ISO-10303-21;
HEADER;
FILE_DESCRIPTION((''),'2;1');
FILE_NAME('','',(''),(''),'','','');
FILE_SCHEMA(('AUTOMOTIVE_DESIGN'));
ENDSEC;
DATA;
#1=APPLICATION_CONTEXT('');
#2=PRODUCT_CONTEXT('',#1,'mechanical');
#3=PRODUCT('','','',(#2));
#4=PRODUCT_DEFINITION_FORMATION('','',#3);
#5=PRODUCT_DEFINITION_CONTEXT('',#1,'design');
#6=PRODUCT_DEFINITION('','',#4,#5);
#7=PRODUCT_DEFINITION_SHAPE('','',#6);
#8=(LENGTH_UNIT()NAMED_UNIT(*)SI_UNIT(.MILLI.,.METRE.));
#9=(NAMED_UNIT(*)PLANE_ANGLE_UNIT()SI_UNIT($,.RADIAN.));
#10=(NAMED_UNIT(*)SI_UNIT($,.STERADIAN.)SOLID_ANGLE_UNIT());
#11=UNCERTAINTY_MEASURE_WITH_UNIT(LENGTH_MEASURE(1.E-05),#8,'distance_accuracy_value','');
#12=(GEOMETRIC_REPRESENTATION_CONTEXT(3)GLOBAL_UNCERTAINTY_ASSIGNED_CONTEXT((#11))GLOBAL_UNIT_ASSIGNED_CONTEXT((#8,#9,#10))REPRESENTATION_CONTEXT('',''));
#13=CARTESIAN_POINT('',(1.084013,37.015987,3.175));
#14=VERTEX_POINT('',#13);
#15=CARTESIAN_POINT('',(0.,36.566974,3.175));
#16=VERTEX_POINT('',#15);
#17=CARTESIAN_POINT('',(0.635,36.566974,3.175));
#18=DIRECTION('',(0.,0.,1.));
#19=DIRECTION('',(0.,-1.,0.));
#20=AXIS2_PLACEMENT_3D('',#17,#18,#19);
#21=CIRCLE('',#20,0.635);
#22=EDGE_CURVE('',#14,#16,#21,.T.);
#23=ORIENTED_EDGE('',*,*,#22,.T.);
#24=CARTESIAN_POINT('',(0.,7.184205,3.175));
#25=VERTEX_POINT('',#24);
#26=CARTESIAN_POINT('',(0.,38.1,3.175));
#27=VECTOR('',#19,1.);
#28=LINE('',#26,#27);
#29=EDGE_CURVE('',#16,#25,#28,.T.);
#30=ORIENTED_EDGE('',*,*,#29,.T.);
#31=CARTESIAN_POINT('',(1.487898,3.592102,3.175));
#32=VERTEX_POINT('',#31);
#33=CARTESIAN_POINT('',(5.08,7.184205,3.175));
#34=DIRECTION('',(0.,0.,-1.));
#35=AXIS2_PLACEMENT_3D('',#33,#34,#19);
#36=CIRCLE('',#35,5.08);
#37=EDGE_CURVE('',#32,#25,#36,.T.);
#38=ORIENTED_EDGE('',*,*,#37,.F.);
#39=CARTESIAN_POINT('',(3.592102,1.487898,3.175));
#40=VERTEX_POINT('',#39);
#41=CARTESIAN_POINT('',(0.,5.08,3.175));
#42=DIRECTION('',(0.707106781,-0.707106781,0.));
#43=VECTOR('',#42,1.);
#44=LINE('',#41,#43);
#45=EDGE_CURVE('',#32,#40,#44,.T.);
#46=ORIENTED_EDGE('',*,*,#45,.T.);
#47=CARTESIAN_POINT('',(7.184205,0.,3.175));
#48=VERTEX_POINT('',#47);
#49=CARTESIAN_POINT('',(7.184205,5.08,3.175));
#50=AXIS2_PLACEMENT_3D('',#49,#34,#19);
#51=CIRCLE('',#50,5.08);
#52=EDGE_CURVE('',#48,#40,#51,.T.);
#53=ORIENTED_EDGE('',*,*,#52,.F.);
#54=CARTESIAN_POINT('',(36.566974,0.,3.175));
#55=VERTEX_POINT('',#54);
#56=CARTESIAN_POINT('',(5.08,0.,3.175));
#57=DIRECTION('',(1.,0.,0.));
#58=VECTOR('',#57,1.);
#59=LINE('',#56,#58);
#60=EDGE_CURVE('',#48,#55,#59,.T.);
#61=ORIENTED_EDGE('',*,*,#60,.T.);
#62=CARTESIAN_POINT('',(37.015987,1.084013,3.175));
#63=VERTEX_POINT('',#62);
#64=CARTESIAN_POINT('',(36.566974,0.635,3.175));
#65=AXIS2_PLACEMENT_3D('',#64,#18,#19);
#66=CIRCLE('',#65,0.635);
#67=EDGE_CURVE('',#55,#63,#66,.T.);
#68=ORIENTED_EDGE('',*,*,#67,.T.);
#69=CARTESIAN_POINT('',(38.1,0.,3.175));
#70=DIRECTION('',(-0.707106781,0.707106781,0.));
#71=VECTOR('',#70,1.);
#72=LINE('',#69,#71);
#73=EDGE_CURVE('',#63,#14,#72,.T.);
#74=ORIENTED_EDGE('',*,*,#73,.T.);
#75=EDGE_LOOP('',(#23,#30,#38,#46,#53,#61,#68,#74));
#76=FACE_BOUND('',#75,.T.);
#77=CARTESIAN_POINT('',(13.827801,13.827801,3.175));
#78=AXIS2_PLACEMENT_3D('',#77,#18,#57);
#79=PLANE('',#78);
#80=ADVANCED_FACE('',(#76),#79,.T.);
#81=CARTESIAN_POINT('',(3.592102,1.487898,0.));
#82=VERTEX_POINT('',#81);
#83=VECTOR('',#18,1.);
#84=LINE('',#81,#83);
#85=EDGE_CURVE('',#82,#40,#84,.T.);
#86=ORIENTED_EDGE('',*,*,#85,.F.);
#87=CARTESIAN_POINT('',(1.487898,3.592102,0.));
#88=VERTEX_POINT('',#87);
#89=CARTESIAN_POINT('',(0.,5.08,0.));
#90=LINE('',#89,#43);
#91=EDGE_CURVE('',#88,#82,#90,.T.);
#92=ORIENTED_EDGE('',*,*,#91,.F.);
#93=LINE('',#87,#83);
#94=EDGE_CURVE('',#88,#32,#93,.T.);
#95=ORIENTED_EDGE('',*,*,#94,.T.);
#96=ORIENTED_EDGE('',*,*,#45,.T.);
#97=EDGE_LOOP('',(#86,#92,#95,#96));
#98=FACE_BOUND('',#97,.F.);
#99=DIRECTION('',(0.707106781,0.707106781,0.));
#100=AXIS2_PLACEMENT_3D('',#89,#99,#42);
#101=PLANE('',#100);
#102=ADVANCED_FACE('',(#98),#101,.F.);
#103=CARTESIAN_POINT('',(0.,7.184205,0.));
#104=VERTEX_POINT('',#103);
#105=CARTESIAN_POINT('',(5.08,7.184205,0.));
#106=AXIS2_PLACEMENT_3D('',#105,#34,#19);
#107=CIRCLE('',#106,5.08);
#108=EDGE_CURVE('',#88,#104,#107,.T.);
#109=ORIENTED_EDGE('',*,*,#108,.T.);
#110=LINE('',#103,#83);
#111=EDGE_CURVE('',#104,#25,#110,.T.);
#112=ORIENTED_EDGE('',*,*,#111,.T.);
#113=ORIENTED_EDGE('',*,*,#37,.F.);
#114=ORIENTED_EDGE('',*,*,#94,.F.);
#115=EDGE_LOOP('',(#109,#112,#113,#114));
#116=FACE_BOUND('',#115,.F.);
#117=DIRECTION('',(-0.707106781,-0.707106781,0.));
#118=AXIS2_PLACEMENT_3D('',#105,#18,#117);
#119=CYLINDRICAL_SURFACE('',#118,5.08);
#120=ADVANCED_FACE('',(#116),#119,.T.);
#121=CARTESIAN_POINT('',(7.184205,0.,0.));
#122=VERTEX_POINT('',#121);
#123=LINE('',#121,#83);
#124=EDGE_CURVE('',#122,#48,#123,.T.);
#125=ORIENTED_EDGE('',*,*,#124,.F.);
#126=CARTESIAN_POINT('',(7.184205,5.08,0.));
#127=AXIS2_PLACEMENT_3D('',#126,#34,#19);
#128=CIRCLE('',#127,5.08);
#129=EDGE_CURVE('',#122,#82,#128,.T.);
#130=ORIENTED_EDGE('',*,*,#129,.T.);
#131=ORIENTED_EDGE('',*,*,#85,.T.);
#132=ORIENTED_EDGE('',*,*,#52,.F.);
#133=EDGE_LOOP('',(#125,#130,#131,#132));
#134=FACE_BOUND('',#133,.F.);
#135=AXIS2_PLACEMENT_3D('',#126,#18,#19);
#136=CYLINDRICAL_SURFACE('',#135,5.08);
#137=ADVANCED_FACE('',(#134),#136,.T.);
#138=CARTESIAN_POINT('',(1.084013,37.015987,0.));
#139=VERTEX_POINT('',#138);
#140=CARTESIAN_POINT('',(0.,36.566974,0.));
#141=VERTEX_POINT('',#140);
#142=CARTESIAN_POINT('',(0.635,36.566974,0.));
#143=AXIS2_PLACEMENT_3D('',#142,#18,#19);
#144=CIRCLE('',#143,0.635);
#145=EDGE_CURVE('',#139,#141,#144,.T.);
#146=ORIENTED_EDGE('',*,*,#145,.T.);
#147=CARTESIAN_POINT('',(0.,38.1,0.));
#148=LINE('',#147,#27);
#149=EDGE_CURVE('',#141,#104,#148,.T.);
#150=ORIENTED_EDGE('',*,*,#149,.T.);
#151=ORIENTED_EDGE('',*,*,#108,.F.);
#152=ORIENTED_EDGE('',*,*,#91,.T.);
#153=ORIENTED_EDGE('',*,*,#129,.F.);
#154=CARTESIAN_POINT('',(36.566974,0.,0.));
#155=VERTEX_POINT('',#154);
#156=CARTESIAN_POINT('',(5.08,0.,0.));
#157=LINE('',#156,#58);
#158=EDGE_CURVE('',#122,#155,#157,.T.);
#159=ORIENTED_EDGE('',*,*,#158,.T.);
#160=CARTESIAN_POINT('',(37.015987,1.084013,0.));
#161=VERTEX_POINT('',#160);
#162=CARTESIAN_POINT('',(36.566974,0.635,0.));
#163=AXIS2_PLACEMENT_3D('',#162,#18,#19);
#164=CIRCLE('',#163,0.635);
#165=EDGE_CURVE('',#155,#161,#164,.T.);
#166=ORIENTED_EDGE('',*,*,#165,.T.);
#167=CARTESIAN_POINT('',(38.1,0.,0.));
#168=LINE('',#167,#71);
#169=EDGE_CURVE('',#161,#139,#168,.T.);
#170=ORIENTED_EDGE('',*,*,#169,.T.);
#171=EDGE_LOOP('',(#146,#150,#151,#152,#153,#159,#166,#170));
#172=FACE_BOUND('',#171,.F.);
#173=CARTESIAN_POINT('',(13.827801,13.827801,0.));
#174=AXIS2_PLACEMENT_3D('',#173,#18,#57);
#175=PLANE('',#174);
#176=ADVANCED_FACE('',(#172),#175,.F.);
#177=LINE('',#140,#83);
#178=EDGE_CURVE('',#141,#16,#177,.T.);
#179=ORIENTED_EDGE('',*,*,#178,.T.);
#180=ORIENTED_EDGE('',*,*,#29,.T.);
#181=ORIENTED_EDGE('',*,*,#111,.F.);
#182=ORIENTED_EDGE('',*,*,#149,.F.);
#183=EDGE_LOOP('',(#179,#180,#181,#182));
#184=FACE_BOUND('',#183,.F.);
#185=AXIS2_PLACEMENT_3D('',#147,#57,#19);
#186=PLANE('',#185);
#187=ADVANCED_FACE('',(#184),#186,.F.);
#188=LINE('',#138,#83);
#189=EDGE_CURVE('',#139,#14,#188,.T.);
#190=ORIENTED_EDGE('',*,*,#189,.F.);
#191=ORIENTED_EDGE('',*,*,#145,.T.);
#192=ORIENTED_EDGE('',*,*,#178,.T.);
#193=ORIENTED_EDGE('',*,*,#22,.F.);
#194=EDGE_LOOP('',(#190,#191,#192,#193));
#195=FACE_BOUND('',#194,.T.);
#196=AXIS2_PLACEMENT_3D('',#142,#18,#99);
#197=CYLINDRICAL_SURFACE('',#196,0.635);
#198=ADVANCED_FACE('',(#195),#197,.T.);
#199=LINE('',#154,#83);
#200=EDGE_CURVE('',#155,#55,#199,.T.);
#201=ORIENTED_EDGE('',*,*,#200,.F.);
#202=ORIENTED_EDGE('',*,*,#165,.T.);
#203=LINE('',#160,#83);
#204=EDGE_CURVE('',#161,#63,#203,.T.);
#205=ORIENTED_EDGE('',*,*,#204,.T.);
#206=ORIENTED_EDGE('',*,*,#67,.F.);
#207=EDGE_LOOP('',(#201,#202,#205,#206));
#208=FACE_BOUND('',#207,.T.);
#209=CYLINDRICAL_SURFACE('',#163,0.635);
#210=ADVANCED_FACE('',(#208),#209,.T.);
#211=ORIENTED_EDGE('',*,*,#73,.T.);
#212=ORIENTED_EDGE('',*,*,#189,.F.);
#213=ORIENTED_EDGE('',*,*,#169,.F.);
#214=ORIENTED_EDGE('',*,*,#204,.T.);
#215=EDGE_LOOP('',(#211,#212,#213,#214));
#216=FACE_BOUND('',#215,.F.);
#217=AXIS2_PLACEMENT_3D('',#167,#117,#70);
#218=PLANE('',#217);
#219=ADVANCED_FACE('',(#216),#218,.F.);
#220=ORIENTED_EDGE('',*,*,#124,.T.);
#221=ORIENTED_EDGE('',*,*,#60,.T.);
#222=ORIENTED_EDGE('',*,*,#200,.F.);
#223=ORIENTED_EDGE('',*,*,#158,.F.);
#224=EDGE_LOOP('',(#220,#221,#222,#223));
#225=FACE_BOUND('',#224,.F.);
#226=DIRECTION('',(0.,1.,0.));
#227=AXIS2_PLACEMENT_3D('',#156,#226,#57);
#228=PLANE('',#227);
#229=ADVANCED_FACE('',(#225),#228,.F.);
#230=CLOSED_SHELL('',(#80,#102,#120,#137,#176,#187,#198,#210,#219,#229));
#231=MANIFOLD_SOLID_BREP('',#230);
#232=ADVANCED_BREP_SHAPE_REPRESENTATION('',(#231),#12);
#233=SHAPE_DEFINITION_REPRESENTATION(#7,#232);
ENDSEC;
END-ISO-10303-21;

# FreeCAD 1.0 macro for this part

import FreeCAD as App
import Part
import Sketcher
from FreeCAD import Vector
Q = App.Units.Quantity


def edges_at(feature, points):
    """Names of the edges that pass closest to the given points."""
    edges = feature.Shape.Edges
    near = lambda p: min(range(len(edges)), key=lambda i: edges[i].distToShape(Part.Vertex(*p))[0])
    return sorted({f"Edge{near(p) + 1}" for p in points})


def add_polygon(sketch, points):
    """Adds a closed chain of lines whose ends are joined by coincident constraints."""
    first, n = sketch.GeometryCount, len(points)
    for a, b in zip(points, points[1:] + points[:1]):
        sketch.addGeometry(Part.LineSegment(App.Vector(*a, 0), App.Vector(*b, 0)), False)
    for i in range(n):
        sketch.addConstraint(Sketcher.Constraint("Coincident", first + i, 2, first + (i + 1) % n, 1))

doc = App.newDocument("Part")
body = doc.addObject("PartDesign::Body", "Body")

sketch1 = doc.addObject("Sketcher::SketchObject", "Sketch")
body.addObject(sketch1)
sketch1.AttachmentSupport = (doc.XY_Plane, [""])
sketch1.MapMode = "FlatFace"
add_polygon(sketch1, [(0, 5.08), (5.08, 0), (38.1, 0), (0, 38.1)])
sketch1.addConstraint(Sketcher.Constraint("Horizontal", 1))
sketch1.addConstraint(Sketcher.Constraint("Vertical", 3))
sketch1.addConstraint(Sketcher.Constraint("PointOnObject", 0, 2, -1))
sketch1.addConstraint(Sketcher.Constraint("PointOnObject", 2, 2, -2))
sketch1.addConstraint(Sketcher.Constraint("Parallel", 0, 2))
sketch1.addConstraint(Sketcher.Constraint("Equal", 1, 3))
sketch1.addConstraint(Sketcher.Constraint("DistanceX", 1, 1, 1, 2, Q("1.3 in")))
sketch1.addConstraint(Sketcher.Constraint("DistanceX", -1, 1, 0, 2, Q("0.2 in")))
pad1 = doc.addObject("PartDesign::Pad", "Pad")
body.addObject(pad1)
pad1.Profile = sketch1
pad1.Length = Q("0.125 in")
doc.recompute()

fillet = doc.addObject("PartDesign::Fillet", "Fillet")
body.addObject(fillet)
fillet.Base = (pad1, edges_at(pad1, [(0, 38.1, 1.587), (38.1, 0, 1.587)]))
fillet.Radius = Q("0.025 in")
doc.recompute()

fillet2 = doc.addObject("PartDesign::Fillet", "Fillet001")
body.addObject(fillet2)
fillet2.Base = (fillet, edges_at(fillet, [(5.08, 0, 1.587), (0, 5.08, 1.587)]))
fillet2.Radius = Q("0.2 in")

doc.recompute()
